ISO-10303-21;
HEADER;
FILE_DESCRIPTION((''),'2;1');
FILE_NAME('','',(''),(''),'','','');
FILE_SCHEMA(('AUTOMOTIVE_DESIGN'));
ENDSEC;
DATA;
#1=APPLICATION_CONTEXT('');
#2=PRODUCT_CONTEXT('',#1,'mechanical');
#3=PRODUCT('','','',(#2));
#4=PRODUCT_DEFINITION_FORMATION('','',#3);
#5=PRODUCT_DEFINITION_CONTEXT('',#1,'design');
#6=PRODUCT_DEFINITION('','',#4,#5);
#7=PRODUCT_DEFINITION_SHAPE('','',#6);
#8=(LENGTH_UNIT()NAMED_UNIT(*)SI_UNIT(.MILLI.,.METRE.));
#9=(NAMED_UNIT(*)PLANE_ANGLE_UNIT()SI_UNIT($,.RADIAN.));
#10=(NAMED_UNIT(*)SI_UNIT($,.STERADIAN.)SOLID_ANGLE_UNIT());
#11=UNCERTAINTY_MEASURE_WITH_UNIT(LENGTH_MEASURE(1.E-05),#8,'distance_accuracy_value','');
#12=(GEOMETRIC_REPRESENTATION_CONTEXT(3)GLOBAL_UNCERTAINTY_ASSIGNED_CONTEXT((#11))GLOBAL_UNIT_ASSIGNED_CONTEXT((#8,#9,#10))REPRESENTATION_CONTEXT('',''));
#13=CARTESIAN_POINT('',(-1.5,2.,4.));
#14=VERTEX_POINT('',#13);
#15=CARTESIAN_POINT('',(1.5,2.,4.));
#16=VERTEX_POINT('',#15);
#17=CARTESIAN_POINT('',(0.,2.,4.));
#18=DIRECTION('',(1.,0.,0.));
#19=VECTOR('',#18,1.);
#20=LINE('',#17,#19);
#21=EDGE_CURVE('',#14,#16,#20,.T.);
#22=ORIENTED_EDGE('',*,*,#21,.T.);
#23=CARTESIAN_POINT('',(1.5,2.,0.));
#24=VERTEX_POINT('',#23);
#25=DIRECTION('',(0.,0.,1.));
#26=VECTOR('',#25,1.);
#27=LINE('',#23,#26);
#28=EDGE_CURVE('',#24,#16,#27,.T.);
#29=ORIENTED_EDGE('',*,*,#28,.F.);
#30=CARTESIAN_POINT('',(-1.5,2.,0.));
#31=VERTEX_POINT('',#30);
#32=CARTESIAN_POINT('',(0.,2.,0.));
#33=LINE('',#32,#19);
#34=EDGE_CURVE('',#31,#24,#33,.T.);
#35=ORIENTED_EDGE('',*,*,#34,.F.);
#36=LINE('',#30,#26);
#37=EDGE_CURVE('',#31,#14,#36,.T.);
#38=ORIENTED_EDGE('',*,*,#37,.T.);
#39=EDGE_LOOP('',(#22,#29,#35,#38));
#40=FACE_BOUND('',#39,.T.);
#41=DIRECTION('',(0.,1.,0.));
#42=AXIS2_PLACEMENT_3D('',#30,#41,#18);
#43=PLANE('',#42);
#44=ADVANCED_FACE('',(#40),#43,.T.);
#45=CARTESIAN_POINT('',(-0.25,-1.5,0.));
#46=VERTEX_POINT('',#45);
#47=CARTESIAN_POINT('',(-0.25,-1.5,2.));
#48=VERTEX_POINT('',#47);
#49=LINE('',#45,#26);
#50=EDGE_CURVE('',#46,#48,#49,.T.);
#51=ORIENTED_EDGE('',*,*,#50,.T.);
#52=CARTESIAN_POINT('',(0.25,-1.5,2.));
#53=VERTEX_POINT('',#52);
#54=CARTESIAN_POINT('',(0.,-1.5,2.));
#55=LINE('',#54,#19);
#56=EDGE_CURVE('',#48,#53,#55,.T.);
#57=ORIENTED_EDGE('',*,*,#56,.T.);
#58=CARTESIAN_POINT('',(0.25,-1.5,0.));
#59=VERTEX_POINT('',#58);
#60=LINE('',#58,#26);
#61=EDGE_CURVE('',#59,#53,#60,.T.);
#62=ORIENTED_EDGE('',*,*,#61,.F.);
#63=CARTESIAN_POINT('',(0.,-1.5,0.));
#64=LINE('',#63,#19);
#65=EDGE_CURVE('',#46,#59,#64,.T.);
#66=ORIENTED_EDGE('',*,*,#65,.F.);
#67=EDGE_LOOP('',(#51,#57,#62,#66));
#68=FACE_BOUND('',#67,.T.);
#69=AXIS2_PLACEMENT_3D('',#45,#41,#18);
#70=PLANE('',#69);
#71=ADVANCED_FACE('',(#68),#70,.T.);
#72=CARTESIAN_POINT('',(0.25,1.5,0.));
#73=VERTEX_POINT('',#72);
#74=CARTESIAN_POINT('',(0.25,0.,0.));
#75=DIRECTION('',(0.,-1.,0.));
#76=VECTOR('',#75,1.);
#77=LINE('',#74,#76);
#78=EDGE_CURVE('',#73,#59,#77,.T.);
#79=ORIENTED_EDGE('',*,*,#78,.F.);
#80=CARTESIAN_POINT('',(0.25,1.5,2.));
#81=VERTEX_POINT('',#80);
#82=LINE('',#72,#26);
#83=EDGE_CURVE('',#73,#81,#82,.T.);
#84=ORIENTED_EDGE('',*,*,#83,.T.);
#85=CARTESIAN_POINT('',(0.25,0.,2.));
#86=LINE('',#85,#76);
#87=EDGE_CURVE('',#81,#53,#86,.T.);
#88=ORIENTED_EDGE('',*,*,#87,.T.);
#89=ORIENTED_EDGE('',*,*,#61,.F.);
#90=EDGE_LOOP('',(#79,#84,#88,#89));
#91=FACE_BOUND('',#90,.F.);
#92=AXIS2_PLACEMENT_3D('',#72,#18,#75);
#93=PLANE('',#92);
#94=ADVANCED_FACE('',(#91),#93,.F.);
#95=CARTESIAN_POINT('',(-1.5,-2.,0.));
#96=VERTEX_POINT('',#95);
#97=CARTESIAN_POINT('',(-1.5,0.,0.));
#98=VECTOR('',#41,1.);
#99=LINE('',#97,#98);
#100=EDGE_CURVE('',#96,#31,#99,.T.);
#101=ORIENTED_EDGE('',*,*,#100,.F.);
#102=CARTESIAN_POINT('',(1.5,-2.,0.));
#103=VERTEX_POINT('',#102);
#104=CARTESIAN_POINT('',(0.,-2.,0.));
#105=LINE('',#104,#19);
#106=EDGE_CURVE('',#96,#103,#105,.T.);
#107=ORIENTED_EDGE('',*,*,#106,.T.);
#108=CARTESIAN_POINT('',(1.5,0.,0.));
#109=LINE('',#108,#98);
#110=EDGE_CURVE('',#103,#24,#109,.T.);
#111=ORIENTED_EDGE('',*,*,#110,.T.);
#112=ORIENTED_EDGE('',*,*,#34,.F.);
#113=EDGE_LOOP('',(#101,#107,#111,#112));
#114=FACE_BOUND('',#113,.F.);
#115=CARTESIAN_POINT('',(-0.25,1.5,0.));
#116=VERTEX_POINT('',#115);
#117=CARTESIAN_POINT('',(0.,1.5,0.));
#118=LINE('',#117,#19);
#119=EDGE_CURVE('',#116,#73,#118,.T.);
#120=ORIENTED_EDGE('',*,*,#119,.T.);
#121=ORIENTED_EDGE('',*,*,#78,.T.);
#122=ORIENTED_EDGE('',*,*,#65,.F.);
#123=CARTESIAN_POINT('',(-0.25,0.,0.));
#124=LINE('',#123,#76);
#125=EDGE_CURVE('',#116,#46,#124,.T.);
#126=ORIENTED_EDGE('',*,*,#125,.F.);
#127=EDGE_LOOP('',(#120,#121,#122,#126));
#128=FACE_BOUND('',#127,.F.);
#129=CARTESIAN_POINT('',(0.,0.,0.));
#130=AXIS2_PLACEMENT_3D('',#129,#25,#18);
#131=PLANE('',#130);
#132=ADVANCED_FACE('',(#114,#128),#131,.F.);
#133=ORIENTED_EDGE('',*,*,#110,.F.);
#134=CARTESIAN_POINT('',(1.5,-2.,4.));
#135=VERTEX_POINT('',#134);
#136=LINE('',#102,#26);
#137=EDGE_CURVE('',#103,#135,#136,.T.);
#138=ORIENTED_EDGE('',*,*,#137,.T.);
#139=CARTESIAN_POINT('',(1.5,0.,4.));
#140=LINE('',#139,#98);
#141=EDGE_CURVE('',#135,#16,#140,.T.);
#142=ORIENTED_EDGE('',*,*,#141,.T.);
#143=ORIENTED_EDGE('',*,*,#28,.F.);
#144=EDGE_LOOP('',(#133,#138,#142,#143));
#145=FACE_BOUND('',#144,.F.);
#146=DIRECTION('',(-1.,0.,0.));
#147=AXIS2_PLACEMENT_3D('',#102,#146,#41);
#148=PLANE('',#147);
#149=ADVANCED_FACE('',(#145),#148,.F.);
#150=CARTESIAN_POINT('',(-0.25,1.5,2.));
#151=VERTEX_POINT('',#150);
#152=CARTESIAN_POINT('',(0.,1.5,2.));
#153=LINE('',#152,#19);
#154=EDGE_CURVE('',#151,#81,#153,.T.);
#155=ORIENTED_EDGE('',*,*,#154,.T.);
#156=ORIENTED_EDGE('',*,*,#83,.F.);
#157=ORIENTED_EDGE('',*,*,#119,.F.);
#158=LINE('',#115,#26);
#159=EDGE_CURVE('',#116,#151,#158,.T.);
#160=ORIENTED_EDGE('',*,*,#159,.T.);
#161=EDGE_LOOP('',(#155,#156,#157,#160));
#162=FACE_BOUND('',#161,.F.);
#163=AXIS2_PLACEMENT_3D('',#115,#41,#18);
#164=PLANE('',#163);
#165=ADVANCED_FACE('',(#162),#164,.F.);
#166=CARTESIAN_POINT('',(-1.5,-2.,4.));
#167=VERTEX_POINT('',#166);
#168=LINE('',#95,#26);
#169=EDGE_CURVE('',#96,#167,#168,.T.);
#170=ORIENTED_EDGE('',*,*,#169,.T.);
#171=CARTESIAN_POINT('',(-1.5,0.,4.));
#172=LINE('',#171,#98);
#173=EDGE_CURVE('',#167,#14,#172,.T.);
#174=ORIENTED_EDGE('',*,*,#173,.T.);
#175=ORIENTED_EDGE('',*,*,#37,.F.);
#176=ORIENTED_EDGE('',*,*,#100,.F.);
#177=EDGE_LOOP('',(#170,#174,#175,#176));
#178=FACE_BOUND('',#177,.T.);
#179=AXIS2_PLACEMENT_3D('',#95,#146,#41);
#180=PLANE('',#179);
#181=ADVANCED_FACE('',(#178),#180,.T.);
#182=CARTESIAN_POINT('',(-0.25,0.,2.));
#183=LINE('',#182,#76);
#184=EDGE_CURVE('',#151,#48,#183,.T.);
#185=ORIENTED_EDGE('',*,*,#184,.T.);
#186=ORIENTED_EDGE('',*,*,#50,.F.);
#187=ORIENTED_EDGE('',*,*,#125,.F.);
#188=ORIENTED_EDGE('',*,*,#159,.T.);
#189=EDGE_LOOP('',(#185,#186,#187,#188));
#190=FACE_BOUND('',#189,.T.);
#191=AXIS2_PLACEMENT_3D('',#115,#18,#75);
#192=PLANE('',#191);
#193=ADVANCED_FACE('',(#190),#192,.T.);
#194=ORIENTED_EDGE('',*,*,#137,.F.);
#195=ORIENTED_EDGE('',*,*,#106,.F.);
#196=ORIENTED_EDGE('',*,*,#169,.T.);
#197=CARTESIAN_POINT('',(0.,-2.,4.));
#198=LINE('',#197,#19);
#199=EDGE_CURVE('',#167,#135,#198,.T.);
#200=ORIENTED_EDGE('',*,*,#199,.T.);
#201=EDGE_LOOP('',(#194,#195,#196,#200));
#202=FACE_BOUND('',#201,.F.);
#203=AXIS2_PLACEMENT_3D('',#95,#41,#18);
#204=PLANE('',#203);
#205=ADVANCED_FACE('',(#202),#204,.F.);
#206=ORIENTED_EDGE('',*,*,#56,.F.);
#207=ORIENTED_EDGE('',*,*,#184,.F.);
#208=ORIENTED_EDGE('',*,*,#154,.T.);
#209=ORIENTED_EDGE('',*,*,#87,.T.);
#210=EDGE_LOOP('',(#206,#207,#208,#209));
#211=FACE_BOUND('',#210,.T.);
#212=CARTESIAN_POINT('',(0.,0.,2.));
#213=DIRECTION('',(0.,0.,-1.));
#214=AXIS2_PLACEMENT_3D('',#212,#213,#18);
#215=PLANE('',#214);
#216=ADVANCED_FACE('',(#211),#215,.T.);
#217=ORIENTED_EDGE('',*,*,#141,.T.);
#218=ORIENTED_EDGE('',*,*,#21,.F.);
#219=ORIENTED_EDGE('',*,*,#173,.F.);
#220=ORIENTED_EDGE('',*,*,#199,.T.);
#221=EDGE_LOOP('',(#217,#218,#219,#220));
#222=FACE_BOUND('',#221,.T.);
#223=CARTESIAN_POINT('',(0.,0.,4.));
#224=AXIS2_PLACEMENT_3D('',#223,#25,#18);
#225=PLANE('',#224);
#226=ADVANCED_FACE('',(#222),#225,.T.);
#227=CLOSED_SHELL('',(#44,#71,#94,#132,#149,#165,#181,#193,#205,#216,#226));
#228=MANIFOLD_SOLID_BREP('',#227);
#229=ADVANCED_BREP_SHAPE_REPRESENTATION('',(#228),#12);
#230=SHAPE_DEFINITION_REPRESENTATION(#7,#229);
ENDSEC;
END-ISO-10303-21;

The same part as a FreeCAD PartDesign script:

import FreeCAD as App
import Part
import Sketcher
from FreeCAD import Vector
Q = App.Units.Quantity


def add_polygon(sketch, points):
    """Adds a closed chain of lines whose ends are joined by coincident constraints."""
    first, n = sketch.GeometryCount, len(points)
    for a, b in zip(points, points[1:] + points[:1]):
        sketch.addGeometry(Part.LineSegment(App.Vector(*a, 0), App.Vector(*b, 0)), False)
    for i in range(n):
        sketch.addConstraint(Sketcher.Constraint("Coincident", first + i, 2, first + (i + 1) % n, 1))

doc = App.newDocument("Part")
body = doc.addObject("PartDesign::Body", "Body")

sketch1 = doc.addObject("Sketcher::SketchObject", "Sketch")
body.addObject(sketch1)
sketch1.AttachmentSupport = (doc.XY_Plane, [""])
sketch1.MapMode = "FlatFace"
add_polygon(sketch1, [(-1.5, 2), (-1.5, -2), (1.5, -2), (1.5, 2)])
sketch1.addConstraint([
    Sketcher.Constraint("Vertical", 0),
    Sketcher.Constraint("Horizontal", 1),
    Sketcher.Constraint("Vertical", 2),
    Sketcher.Constraint("Horizontal", 3),
    Sketcher.Constraint("Symmetric", 0, 2, 2, 2, -1, 1),
    Sketcher.Constraint("DistanceX", 1, 1, 1, 2, Q("3 mm")),
    Sketcher.Constraint("DistanceY", 0, 2, 0, 1, Q("4 mm")),
])
pad1 = doc.addObject("PartDesign::Pad", "Pad")
body.addObject(pad1)
pad1.Profile = sketch1
pad1.Length = 4

sketch2 = doc.addObject("Sketcher::SketchObject", "Sketch001")
body.addObject(sketch2)
sketch2.AttachmentSupport = (doc.XY_Plane, [""])
sketch2.MapMode = "FlatFace"
add_polygon(sketch2, [(-0.2, -1.5), (-0.2, 1.5), (0.2, 1.5), (0.2, -1.5)])
sketch2.addConstraint([
    Sketcher.Constraint("Vertical", 0),
    Sketcher.Constraint("Horizontal", 1),
    Sketcher.Constraint("Vertical", 2),
    Sketcher.Constraint("Horizontal", 3),
    Sketcher.Constraint("Symmetric", 0, 2, 2, 2, -1, 1),
    Sketcher.Constraint("DistanceY", 0, 1, 0, 2, Q("3 mm")),
    Sketcher.Constraint("DistanceX", 1, 1, 1, 2, Q("0.5 mm")),
])
pocket1 = doc.addObject("PartDesign::Pocket", "Pocket")
body.addObject(pocket1)
pocket1.Profile = sketch2
pocket1.Length = 2
pocket1.Reversed = True

doc.recompute()
